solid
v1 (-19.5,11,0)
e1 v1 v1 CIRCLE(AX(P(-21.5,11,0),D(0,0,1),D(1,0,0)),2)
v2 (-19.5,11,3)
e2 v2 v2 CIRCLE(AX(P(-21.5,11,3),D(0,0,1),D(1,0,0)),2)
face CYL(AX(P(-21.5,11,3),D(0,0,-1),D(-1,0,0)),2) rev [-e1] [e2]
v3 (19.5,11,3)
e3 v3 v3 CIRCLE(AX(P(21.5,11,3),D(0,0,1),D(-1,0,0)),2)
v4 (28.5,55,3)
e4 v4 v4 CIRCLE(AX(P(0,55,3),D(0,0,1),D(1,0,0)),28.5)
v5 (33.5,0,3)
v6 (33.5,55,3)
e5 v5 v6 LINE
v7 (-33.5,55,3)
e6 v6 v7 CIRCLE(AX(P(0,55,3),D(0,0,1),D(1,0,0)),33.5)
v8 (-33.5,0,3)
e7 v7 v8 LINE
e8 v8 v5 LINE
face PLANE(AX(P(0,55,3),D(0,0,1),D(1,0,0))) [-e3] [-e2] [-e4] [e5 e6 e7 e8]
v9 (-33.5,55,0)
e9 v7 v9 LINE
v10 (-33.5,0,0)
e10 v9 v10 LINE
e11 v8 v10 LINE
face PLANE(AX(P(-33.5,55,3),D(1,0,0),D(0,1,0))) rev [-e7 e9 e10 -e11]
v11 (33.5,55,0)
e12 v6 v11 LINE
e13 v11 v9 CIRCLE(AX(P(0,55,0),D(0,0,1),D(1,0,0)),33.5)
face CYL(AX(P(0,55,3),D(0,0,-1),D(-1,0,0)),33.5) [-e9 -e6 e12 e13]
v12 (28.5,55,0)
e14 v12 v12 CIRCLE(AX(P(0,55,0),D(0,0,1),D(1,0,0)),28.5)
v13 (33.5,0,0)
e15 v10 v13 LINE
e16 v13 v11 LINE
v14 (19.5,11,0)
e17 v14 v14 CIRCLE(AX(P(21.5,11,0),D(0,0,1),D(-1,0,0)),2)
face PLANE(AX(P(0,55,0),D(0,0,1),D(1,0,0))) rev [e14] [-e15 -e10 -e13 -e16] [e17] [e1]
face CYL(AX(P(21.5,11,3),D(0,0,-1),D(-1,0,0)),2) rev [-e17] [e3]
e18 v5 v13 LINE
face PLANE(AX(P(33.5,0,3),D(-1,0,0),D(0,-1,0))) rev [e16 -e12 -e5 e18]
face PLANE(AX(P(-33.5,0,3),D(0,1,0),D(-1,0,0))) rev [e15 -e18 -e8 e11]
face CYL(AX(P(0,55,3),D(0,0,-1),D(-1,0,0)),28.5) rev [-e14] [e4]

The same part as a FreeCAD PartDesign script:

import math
import FreeCAD as App
import Part
import Sketcher
from FreeCAD import Vector
Q = App.Units.Quantity

doc = App.newDocument("Part")
body = doc.addObject("PartDesign::Body", "Body")

sketch1 = body.newObject("Sketcher::SketchObject", "Sketch")
sketch1.AttachmentSupport = (doc.getObject("XY_Plane"), [""])
sketch1.MapMode = "FlatFace"
sketch1.addGeometry([
    Part.LineSegment(Vector(-33.5, 0, 0), Vector(33.5, 0, 0)),
    Part.LineSegment(Vector(33.5, 0, 0), Vector(33.5, 55, 0)),
    Part.ArcOfCircle(Part.Circle(Vector(0, 55, 0), Vector(0, 0, 1), 33.5), math.radians(0), math.radians(180)),
    Part.LineSegment(Vector(-33.5, 55, 0), Vector(-33.5, 0, 0)),
    Part.Circle(Vector(-21.5, 11, 0), Vector(0, 0, 1), 2),
    Part.Circle(Vector(21.5, 11, 0), Vector(0, 0, 1), 2),
    Part.Circle(Vector(0, 55, 0), Vector(0, 0, 1), 28.5),
], False)
sketch1.addConstraint([
    Sketcher.Constraint("Coincident", 0, 2, 1, 1),
    Sketcher.Constraint("Tangent", 1, 2, 2, 1),
    Sketcher.Constraint("Tangent", 2, 2, 3, 1),
    Sketcher.Constraint("Coincident", 3, 2, 0, 1),
    Sketcher.Constraint("Horizontal", 0),
    Sketcher.Constraint("Vertical", 1),
    Sketcher.Constraint("Vertical", 3),
    Sketcher.Constraint("Coincident", 6, 3, 2, 3),
    Sketcher.Constraint("Equal", 4, 5),
    Sketcher.Constraint("Symmetric", 0, 2, 3, 2, -1, 1),
    Sketcher.Constraint("Symmetric", 4, 3, 5, 3, -2),
    Sketcher.Constraint("Diameter", 4, Q("4 mm")),
    Sketcher.Constraint("Diameter", 6, Q("57 mm")),
    Sketcher.Constraint("Radius", 2, Q("33.5 mm")),
    Sketcher.Constraint("DistanceY", 1, 1, 1, 2, Q("55 mm")),
    Sketcher.Constraint("DistanceY", -1, 1, 4, 3, Q("11 mm")),
    Sketcher.Constraint("DistanceX", 4, 3, 5, 3, Q("43 mm")),
])
pad1 = body.newObject("PartDesign::Pad", "Pad")
pad1.Profile = sketch1
pad1.Length = 3

doc.recompute()
